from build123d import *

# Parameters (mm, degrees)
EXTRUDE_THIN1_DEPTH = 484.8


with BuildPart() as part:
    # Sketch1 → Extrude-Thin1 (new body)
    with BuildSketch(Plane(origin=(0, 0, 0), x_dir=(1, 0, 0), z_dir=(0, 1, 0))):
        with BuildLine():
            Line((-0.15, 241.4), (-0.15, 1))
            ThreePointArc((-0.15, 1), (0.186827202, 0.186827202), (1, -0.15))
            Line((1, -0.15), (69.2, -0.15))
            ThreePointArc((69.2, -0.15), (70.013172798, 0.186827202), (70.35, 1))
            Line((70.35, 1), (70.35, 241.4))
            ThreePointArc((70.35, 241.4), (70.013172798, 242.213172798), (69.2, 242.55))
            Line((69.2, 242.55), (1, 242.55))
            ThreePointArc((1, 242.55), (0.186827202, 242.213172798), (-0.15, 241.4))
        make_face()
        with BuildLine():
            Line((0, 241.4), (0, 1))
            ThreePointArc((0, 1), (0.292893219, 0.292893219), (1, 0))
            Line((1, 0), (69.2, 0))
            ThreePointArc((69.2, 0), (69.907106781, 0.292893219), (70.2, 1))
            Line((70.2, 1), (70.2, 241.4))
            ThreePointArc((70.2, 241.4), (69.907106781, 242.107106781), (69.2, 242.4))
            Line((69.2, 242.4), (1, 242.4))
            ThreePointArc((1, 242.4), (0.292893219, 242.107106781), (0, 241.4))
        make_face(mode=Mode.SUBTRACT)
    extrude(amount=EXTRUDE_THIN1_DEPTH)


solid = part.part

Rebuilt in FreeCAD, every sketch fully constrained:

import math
import FreeCAD as App
import Part
import Sketcher

V = App.Vector

doc = App.newDocument("Part")
body = doc.addObject("PartDesign::Body", "Body")

sketch1 = body.newObject("Sketcher::SketchObject", "Sketch")
sketch1.AttachmentSupport = (doc.getObject("XZ_Plane"), [""])
sketch1.MapMode = "FlatFace"
sketch1.addGeometry([
    Part.LineSegment(V(-0.1, -241.4, 0), V(-0.1, -1, 0)),
    Part.ArcOfCircle(Part.Circle(V(1, -1, 0), V(0, 0, 1), 1.2), math.radians(90), math.radians(180)),
    Part.LineSegment(V(1, 0.1, 0), V(69.2, 0.1, 0)),
    Part.ArcOfCircle(Part.Circle(V(69.2, -1, 0), V(0, 0, 1), 1.2), math.radians(0), math.radians(90)),
    Part.LineSegment(V(70.3, -1, 0), V(70.3, -241.4, 0)),
    Part.ArcOfCircle(Part.Circle(V(69.2, -241.4, 0), V(0, 0, 1), 1.2), math.radians(-90), math.radians(0)),
    Part.LineSegment(V(69.2, -242.6, 0), V(1, -242.6, 0)),
    Part.ArcOfCircle(Part.Circle(V(1, -241.4, 0), V(0, 0, 1), 1.2), math.radians(-180), math.radians(-90)),
    Part.LineSegment(V(0, -1, 0), V(0, -241.4, 0)),
    Part.ArcOfCircle(Part.Circle(V(1, -241.4, 0), V(0, 0, 1), 1), math.radians(-180), math.radians(-90)),
    Part.LineSegment(V(1, -242.4, 0), V(69.2, -242.4, 0)),
    Part.ArcOfCircle(Part.Circle(V(69.2, -241.4, 0), V(0, 0, 1), 1), math.radians(-90), math.radians(0)),
    Part.LineSegment(V(70.2, -241.4, 0), V(70.2, -1, 0)),
    Part.ArcOfCircle(Part.Circle(V(69.2, -1, 0), V(0, 0, 1), 1), math.radians(0), math.radians(90)),
    Part.LineSegment(V(69.2, 0, 0), V(1, 0, 0)),
    Part.ArcOfCircle(Part.Circle(V(1, -1, 0), V(0, 0, 1), 1), math.radians(90), math.radians(180)),
], False)
sketch1.addConstraint([
    Sketcher.Constraint("Tangent", 0, 2, 1, 2),
    Sketcher.Constraint("Tangent", 1, 1, 2, 1),
    Sketcher.Constraint("Tangent", 2, 2, 3, 2),
    Sketcher.Constraint("Tangent", 3, 1, 4, 1),
    Sketcher.Constraint("Tangent", 4, 2, 5, 2),
    Sketcher.Constraint("Tangent", 5, 1, 6, 1),
    Sketcher.Constraint("Tangent", 6, 2, 7, 2),
    Sketcher.Constraint("Tangent", 7, 1, 0, 1),
    Sketcher.Constraint("Tangent", 8, 2, 9, 1),
    Sketcher.Constraint("Tangent", 9, 2, 10, 1),
    Sketcher.Constraint("Tangent", 10, 2, 11, 1),
    Sketcher.Constraint("Tangent", 11, 2, 12, 1),
    Sketcher.Constraint("Tangent", 12, 2, 13, 1),
    Sketcher.Constraint("Tangent", 13, 2, 14, 1),
    Sketcher.Constraint("Tangent", 14, 2, 15, 1),
    Sketcher.Constraint("Tangent", 15, 2, 8, 1),
    Sketcher.Constraint("Vertical", 0),
    Sketcher.Constraint("Horizontal", 2),
    Sketcher.Constraint("Vertical", 4),
    Sketcher.Constraint("Horizontal", 6),
    Sketcher.Constraint("Vertical", 8),
    Sketcher.Constraint("Horizontal", 10),
    Sketcher.Constraint("Vertical", 12),
    Sketcher.Constraint("Horizontal", 14),
    Sketcher.Constraint("Coincident", 9, 3, 7, 3),
    Sketcher.Constraint("Coincident", 11, 3, 5, 3),
    Sketcher.Constraint("Coincident", 13, 3, 3, 3),
    Sketcher.Constraint("Equal", 1, 3),
    Sketcher.Constraint("Equal", 3, 5),
    Sketcher.Constraint("Equal", 5, 7),
    Sketcher.Constraint("Equal", 13, 15),
    Sketcher.Constraint("PointOnObject", 8, 2, -2),
    Sketcher.Constraint("PointOnObject", 13, 2, -1),
    Sketcher.Constraint("Radius", 9, 1.0),
    Sketcher.Constraint("Radius", 1, 1.15),
    Sketcher.Constraint("DistanceX", 2, 1, 2, 2, 68.2),
    Sketcher.Constraint("DistanceY", 0, 1, 0, 2, 240.4),
])
pad1 = body.newObject("PartDesign::Pad", "Pad")
pad1.Profile = sketch1
pad1.Length = 484.8
pad1.Reversed = True

doc.recompute()
